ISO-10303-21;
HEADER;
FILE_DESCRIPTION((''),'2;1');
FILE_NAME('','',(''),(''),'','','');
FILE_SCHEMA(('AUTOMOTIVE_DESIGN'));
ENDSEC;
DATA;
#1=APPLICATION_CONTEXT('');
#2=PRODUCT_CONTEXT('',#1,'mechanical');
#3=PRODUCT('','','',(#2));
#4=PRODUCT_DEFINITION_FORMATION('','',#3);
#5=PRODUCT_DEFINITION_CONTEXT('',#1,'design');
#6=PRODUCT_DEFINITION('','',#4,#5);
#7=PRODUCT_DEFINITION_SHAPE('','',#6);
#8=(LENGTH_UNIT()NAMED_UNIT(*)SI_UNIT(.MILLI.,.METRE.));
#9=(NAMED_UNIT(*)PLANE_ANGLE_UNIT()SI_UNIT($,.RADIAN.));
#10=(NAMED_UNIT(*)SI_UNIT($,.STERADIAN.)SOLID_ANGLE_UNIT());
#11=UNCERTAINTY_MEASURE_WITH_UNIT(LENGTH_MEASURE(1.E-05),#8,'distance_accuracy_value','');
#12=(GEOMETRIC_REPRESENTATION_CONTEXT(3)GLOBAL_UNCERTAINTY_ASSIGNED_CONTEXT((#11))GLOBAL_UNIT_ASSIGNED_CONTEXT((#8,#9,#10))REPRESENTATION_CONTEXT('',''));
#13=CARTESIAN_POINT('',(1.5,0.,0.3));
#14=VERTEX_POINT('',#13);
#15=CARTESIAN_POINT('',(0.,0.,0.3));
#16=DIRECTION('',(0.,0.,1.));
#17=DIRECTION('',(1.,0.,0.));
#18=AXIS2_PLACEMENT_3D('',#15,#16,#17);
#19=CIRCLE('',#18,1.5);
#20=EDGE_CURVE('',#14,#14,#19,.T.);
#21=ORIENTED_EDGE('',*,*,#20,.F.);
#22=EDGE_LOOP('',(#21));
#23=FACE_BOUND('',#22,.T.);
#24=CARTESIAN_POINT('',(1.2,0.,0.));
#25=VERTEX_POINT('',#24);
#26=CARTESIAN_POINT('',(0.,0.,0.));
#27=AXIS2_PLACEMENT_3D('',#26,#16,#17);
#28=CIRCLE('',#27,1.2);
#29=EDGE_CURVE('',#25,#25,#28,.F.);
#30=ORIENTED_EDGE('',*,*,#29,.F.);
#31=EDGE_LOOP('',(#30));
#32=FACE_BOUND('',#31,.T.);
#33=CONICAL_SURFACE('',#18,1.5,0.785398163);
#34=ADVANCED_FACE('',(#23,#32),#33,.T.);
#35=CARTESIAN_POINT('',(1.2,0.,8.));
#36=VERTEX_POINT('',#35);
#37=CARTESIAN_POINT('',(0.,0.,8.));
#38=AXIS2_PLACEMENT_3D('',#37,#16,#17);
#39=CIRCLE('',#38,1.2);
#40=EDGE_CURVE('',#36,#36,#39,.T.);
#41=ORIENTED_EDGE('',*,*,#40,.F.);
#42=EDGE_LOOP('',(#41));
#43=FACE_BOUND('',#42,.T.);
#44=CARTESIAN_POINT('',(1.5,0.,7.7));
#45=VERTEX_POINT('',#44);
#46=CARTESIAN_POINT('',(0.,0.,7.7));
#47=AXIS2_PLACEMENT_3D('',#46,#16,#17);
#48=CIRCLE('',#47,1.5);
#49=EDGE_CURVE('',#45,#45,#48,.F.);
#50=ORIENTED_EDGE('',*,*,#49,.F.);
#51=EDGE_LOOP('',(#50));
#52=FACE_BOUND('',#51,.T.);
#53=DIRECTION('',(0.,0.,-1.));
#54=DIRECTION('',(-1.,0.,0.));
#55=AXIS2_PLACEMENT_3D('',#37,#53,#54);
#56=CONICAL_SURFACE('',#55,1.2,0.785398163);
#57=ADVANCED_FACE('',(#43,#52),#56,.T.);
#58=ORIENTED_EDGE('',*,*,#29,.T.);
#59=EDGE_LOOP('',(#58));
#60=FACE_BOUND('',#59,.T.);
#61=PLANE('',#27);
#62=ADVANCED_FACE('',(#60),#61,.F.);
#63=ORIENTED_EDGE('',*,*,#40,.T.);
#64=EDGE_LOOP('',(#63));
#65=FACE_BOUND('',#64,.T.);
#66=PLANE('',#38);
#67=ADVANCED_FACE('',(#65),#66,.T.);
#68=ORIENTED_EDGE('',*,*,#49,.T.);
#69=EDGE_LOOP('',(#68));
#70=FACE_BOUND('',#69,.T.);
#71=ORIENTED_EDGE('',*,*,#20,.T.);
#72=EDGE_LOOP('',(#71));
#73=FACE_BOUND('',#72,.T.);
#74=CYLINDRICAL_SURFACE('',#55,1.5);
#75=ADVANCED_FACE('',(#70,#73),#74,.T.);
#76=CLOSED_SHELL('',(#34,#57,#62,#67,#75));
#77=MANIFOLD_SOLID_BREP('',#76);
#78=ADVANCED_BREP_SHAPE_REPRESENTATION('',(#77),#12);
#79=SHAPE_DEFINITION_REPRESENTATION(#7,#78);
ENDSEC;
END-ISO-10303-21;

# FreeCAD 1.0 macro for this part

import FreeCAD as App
import Part
import Sketcher
Q = App.Units.Quantity


def edges_at(feature, points):
    """Names of the edges that pass closest to the given points."""
    edges = feature.Shape.Edges
    near = lambda p: min(range(len(edges)), key=lambda i: edges[i].distToShape(Part.Vertex(*p))[0])
    return sorted({f"Edge{near(p) + 1}" for p in points})

doc = App.newDocument("Part")
body = doc.addObject("PartDesign::Body", "Body")

# Sketch on XY plane
sketch1 = body.newObject("Sketcher::SketchObject", "Sketch")
sketch1.AttachmentSupport = (doc.getObject("XY_Plane"), [""])
sketch1.MapMode = "FlatFace"
sketch1.addGeometry(Part.Circle(App.Vector(0, 0, 0), App.Vector(0, 0, 1), 1.5), False)
sketch1.addConstraint([
    Sketcher.Constraint("Coincident", 0, 3, -1, 1),
    Sketcher.Constraint("Diameter", 0, Q("3 mm")),
])
pad1 = body.newObject("PartDesign::Pad", "Pad")
pad1.Profile = sketch1
pad1.Length = 8
doc.recompute()

chamfer = body.newObject("PartDesign::Chamfer", "Chamfer")
chamfer.Base = (pad1, edges_at(pad1, [(-1.5, 0, 0), (-1.5, 0, 8)]))
chamfer.Size = 0.3

doc.recompute()
